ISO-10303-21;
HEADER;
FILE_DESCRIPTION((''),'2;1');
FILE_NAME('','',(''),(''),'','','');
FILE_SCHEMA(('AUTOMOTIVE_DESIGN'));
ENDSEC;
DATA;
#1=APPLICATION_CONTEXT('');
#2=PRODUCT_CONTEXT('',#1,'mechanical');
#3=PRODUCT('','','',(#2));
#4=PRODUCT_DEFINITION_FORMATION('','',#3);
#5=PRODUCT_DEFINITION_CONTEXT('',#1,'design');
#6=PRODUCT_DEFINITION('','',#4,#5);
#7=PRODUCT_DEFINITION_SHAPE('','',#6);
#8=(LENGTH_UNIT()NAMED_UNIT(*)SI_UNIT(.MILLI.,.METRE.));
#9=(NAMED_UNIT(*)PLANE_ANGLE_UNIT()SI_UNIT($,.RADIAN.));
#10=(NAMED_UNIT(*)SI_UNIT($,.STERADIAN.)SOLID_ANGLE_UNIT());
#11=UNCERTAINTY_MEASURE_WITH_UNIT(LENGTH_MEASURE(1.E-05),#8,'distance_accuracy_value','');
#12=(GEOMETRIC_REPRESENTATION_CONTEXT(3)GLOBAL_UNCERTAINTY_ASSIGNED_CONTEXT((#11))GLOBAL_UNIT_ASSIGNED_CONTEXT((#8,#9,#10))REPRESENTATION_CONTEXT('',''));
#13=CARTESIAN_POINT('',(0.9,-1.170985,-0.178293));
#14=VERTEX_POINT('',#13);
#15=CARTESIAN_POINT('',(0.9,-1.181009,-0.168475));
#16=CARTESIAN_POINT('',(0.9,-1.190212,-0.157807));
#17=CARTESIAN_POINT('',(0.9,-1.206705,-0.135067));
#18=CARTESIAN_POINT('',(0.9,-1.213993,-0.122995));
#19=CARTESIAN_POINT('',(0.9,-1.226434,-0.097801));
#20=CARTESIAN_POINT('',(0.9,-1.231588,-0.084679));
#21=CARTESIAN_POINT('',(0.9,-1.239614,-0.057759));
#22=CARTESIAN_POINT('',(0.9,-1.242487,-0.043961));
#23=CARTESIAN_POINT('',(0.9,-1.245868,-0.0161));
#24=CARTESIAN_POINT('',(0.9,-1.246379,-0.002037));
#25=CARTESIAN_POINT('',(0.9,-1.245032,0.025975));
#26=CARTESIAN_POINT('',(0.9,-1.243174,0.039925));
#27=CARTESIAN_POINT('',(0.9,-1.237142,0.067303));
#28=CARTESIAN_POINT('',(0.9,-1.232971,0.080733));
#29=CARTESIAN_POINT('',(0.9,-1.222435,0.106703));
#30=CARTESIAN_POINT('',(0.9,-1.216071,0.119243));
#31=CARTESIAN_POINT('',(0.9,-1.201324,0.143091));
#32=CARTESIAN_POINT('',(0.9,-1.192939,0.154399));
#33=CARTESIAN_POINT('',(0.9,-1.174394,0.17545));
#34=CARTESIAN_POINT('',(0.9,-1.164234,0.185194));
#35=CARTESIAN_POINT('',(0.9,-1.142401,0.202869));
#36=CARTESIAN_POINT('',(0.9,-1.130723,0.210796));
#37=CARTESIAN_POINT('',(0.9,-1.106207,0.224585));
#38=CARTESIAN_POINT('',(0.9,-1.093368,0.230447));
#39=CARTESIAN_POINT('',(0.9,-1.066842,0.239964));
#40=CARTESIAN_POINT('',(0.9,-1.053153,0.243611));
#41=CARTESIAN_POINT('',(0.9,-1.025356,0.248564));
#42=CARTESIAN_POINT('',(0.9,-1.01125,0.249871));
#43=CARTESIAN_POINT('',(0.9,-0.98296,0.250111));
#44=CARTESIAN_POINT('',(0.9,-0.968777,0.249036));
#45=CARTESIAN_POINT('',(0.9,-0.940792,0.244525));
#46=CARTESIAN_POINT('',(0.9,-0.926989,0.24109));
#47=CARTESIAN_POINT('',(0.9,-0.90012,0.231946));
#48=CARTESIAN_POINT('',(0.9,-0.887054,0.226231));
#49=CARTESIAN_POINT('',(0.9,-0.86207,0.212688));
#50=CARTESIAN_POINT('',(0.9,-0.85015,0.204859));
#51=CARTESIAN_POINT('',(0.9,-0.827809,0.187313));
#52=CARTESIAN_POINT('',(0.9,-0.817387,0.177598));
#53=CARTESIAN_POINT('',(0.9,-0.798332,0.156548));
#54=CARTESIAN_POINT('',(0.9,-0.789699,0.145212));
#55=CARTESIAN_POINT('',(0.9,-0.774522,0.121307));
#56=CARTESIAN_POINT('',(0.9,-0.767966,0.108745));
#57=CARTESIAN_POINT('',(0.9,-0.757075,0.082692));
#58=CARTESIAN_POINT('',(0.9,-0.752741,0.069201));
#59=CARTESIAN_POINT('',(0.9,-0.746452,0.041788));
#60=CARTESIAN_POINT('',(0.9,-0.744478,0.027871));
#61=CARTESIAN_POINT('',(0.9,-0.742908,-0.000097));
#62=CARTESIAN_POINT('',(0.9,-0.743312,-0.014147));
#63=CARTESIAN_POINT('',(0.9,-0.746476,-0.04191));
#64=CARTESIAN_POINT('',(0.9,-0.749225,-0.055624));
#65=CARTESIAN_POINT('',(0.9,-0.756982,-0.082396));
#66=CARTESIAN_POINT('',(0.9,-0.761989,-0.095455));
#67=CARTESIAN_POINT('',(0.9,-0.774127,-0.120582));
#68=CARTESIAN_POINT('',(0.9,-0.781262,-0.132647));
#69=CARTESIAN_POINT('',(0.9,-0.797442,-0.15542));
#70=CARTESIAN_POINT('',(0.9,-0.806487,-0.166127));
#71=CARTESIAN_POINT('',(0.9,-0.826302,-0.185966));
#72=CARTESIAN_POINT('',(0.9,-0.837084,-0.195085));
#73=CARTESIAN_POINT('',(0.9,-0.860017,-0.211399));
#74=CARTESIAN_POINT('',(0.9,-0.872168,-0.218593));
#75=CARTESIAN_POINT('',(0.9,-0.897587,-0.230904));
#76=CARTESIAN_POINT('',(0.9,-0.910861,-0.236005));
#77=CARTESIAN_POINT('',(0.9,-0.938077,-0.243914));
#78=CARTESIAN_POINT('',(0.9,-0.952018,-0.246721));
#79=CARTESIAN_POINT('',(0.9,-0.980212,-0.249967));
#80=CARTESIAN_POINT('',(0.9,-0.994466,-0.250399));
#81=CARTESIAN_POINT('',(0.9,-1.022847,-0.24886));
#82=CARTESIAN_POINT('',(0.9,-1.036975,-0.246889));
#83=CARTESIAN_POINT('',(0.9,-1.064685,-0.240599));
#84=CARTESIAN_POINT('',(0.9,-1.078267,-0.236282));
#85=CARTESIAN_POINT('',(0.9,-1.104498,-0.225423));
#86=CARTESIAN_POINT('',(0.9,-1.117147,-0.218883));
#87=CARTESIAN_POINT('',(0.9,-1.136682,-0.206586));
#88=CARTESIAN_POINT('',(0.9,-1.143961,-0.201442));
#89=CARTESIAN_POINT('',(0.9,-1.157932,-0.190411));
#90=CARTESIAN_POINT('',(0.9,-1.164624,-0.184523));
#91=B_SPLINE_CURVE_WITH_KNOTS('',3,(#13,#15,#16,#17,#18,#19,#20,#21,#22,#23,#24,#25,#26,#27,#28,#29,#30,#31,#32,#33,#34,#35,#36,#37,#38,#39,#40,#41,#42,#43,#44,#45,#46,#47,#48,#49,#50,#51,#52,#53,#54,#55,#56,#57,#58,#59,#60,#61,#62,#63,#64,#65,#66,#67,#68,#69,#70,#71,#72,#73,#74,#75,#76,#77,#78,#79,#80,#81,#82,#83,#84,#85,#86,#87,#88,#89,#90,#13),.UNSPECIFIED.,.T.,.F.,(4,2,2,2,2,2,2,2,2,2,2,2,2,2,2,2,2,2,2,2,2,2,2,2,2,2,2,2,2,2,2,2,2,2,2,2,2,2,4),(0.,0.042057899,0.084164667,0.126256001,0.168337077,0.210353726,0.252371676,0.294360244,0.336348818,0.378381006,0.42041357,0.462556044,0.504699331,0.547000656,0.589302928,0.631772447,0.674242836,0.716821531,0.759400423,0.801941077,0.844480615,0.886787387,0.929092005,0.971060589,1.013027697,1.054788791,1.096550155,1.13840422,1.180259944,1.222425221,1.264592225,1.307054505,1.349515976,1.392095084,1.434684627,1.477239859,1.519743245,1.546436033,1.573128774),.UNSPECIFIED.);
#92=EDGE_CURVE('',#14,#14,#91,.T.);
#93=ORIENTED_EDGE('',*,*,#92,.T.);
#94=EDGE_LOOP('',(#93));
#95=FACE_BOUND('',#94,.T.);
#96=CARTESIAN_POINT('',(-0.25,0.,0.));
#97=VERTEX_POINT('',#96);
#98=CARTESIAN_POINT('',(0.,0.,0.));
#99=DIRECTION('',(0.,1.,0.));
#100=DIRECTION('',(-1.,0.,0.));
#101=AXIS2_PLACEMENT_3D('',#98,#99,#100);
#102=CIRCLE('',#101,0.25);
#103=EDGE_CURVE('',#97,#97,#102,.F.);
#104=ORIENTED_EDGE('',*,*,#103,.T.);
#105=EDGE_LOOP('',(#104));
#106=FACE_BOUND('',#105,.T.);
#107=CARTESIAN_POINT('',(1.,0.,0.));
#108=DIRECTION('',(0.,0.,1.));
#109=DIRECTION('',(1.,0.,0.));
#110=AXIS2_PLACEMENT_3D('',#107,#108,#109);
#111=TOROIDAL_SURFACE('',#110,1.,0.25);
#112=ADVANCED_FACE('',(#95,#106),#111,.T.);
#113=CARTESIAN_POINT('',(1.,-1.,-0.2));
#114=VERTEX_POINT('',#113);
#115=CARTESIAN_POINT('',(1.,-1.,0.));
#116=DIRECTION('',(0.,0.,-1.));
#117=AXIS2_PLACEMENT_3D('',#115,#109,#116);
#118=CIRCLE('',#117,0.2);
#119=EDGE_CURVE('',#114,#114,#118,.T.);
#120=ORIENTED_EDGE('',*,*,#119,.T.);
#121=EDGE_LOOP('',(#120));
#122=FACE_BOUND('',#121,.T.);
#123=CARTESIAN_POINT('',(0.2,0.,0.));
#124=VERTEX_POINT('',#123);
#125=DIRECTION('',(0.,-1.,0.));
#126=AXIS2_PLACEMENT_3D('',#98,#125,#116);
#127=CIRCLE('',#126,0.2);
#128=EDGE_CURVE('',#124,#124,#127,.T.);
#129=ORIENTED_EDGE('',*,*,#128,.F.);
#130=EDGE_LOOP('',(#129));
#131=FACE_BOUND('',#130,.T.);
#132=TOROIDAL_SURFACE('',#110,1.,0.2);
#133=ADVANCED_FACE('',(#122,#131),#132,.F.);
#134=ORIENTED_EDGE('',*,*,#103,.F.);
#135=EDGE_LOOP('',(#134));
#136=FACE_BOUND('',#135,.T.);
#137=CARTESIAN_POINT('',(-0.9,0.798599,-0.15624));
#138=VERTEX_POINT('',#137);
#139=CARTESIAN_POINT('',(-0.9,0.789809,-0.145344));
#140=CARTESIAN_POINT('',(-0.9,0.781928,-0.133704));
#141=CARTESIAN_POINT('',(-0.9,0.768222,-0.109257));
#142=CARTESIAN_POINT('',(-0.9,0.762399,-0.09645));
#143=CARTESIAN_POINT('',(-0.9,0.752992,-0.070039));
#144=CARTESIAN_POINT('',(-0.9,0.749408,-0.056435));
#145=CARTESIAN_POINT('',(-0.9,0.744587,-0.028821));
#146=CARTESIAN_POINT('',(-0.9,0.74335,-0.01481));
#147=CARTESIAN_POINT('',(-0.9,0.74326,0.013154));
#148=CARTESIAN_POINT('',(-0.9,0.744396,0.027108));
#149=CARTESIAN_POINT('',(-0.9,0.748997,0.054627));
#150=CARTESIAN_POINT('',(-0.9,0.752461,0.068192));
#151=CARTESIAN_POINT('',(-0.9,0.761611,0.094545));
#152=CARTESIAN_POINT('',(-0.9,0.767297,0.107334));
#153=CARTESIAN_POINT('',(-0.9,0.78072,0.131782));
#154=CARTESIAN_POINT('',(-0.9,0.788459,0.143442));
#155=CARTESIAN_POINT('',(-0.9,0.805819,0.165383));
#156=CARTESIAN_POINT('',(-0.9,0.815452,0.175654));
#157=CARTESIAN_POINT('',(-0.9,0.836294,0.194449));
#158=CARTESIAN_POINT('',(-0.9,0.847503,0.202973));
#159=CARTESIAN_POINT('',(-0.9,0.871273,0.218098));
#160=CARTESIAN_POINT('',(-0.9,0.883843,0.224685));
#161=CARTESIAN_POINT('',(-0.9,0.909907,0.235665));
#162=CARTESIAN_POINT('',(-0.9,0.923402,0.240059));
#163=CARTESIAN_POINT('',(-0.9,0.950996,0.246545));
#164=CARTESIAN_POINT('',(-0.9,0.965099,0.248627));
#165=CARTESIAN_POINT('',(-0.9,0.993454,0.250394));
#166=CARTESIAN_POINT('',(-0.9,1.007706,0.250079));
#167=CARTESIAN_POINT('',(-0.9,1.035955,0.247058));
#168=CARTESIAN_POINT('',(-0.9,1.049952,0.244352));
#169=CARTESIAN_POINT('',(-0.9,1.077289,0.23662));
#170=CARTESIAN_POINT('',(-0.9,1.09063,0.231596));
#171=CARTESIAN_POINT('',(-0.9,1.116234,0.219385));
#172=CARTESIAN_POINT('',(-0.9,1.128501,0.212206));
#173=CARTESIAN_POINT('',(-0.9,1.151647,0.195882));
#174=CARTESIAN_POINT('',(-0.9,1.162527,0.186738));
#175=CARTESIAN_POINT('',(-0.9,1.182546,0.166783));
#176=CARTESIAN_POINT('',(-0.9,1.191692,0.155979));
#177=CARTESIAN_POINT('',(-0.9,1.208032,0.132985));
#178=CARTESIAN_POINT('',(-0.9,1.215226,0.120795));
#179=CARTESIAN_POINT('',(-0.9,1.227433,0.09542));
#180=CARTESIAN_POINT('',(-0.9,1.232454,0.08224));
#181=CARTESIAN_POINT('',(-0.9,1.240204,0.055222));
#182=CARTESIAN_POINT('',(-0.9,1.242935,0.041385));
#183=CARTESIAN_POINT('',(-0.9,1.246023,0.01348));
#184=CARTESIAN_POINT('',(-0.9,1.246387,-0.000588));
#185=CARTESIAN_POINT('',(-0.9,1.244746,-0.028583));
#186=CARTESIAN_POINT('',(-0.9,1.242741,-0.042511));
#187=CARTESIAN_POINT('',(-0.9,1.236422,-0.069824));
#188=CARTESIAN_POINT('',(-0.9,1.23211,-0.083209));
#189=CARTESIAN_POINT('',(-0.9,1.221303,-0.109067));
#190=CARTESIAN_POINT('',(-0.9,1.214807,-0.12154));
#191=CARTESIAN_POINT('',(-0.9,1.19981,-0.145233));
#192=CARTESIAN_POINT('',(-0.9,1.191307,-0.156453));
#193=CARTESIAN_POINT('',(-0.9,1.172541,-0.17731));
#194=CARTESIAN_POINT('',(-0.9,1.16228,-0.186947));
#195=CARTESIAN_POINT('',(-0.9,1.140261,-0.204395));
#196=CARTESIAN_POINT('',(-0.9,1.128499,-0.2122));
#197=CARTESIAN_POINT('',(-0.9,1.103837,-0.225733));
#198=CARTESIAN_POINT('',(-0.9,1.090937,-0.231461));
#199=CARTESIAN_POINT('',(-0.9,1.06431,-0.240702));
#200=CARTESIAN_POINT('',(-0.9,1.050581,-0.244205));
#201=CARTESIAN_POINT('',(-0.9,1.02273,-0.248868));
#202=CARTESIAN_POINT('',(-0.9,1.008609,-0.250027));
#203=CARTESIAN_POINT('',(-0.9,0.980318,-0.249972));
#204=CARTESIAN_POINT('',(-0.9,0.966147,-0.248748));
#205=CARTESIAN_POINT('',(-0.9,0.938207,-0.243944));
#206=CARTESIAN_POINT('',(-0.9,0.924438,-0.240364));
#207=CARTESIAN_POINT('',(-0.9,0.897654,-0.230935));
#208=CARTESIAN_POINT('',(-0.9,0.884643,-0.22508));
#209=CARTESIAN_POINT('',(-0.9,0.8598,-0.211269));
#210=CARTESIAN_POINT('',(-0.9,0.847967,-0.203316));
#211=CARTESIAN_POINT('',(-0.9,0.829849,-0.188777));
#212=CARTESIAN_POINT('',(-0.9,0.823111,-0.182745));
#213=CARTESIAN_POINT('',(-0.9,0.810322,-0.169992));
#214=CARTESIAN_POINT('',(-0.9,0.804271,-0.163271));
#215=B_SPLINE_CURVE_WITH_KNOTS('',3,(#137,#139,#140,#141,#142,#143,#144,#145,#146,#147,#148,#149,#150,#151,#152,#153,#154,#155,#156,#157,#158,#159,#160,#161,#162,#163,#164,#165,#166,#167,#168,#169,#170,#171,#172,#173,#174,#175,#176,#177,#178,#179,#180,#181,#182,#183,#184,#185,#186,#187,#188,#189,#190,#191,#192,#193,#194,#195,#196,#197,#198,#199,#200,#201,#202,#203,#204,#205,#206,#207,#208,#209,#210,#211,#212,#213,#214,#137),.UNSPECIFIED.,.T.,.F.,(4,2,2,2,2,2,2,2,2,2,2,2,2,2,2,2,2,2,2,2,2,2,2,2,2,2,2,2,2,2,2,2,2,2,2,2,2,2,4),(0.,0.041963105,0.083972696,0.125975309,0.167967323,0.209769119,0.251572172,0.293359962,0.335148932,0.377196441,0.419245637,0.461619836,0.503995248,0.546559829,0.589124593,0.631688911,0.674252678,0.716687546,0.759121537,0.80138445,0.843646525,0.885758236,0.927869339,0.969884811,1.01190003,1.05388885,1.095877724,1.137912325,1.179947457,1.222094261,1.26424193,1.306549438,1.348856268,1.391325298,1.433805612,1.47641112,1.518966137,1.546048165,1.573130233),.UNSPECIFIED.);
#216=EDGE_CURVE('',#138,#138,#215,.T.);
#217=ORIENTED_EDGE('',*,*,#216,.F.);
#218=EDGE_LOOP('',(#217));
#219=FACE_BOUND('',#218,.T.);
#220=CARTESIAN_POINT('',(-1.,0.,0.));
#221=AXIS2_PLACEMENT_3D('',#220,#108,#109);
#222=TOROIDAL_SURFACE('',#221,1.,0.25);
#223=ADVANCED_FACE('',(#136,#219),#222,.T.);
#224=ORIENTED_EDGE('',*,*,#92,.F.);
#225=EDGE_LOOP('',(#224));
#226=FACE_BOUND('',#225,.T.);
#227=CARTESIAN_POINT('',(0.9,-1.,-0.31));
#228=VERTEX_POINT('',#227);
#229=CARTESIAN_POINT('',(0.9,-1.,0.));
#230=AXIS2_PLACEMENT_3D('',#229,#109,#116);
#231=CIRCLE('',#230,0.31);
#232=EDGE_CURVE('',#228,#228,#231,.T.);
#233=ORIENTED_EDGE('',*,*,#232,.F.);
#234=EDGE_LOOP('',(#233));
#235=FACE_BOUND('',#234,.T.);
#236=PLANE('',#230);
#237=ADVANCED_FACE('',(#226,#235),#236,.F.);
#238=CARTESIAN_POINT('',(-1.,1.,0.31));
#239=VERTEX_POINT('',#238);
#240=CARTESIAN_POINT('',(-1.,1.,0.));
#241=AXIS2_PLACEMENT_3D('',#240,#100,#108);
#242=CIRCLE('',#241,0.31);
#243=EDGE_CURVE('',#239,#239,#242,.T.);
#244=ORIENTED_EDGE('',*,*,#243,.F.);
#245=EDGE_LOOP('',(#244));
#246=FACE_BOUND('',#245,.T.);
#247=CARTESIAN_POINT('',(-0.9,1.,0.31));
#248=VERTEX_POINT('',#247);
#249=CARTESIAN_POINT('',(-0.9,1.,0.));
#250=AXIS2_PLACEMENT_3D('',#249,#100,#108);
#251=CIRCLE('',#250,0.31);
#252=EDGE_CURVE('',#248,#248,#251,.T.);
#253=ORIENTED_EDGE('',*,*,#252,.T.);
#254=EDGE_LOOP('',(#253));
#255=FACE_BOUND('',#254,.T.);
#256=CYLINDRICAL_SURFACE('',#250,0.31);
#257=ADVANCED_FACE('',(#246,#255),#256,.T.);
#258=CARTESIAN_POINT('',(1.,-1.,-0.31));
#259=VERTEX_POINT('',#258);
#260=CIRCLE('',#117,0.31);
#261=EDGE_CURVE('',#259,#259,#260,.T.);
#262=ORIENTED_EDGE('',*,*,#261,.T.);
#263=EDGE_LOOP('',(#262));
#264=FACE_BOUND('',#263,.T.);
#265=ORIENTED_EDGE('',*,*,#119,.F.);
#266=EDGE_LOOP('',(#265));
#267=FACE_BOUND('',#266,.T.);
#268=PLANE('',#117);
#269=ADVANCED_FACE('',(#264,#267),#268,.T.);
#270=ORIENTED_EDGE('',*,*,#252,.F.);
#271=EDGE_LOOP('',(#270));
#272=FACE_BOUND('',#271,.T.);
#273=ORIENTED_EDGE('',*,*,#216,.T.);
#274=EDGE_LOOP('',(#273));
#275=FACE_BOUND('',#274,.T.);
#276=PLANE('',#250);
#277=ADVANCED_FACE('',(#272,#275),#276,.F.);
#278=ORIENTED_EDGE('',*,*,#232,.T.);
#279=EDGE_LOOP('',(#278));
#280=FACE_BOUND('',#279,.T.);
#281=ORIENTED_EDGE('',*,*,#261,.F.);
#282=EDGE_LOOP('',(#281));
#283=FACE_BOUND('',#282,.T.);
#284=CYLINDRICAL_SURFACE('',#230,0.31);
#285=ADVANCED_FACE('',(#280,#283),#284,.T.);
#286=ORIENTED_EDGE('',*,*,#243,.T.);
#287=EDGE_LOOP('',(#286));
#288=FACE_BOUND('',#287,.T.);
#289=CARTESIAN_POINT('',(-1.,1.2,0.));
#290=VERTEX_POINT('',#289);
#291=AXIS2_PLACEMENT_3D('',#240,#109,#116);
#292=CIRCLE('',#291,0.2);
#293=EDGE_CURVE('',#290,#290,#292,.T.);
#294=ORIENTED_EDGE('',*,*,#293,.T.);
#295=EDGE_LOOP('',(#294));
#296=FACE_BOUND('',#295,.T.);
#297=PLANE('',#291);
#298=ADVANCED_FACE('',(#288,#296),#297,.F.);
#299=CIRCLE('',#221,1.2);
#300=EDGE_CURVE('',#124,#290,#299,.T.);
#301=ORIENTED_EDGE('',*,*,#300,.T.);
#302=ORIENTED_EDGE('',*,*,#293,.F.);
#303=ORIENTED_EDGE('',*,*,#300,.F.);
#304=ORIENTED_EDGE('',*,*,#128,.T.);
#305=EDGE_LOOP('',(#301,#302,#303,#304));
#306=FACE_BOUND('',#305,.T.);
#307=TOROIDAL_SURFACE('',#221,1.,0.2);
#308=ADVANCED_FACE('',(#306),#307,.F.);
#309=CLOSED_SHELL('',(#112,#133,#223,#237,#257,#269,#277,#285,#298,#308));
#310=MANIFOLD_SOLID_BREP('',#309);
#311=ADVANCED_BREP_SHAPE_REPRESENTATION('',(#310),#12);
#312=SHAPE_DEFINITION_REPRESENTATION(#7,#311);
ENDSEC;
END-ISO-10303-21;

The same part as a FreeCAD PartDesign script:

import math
import FreeCAD as App
import Part
import Sketcher
Q = App.Units.Quantity

doc = App.newDocument("Part")
body = doc.addObject("PartDesign::Body", "Body")

sketch1 = body.newObject("Sketcher::SketchObject", "Sketch")
sketch1.AttachmentSupport = (doc.getObject("YZ_Plane"), [""])
sketch1.MapMode = "FlatFace"
sketch1.AttachmentOffset = App.Placement(App.Vector(0, 0, 1), App.Rotation())
sketch1.addGeometry([
    Part.Circle(App.Vector(-1, 0, 0), App.Vector(0, 0, 1), 0.25),
    Part.Circle(App.Vector(-1, 0, 0), App.Vector(0, 0, 1), 0.2),
], False)
sketch1.addConstraint([
    Sketcher.Constraint("Coincident", 1, 3, 0, 3),
    Sketcher.Constraint("PointOnObject", 0, 3, -1),
    Sketcher.Constraint("Diameter", 0, Q("0.5 mm")),
    Sketcher.Constraint("Diameter", 1, Q("0.4 mm")),
    Sketcher.Constraint("DistanceX", 0, 3, -1, 1, Q("1 mm")),
])

sketch2 = body.newObject("Sketcher::SketchObject", "Sketch001")
sketch2.AttachmentSupport = (doc.getObject("XY_Plane"), [""])
sketch2.MapMode = "FlatFace"
sketch2.addGeometry([
    Part.ArcOfCircle(Part.Circle(App.Vector(1, 0, 0), App.Vector(0, 0, 1), 1), math.radians(-180), math.radians(-90)),
    Part.ArcOfCircle(Part.Circle(App.Vector(-1, 0, 0), App.Vector(0, 0, 1), 1), math.radians(0), math.radians(90)),
], False)
sketch2.addConstraint([
    Sketcher.Constraint("Tangent", 0, 1, 1, 1),
    Sketcher.Constraint("Coincident", 0, 1, -1, 1),
    Sketcher.Constraint("Equal", 0, 1),
    Sketcher.Constraint("PointOnObject", 0, 3, -1),
    Sketcher.Constraint("Radius", 0, Q("1 mm")),
    Sketcher.Constraint("DistanceX", -1, 1, 0, 2, Q("1 mm")),
    Sketcher.Constraint("DistanceX", 1, 2, -1, 1, Q("1 mm")),
])
doc.recompute()

additivepipe = body.newObject("PartDesign::AdditivePipe", "AdditivePipe")
additivepipe.Profile = sketch1
additivepipe.Spine = (sketch2, ["Edge1", "Edge2"])

sketch3 = body.newObject("Sketcher::SketchObject", "Sketch002")
sketch3.AttachmentSupport = (doc.getObject("YZ_Plane"), [""])
sketch3.MapMode = "FlatFace"
sketch3.AttachmentOffset = App.Placement(App.Vector(0, 0, -1), App.Rotation())
sketch3.addGeometry([
    Part.Circle(App.Vector(1, 0, 0), App.Vector(0, 0, 1), 0.31),
    Part.Circle(App.Vector(1, 0, 0), App.Vector(0, 0, 1), 0.21),
], False)
sketch3.addConstraint([
    Sketcher.Constraint("Coincident", 1, 3, 0, 3),
    Sketcher.Constraint("PointOnObject", 0, 3, -1),
    Sketcher.Constraint("Diameter", 0, Q("0.62 mm")),
    Sketcher.Constraint("Diameter", 1, Q("0.42 mm")),
    Sketcher.Constraint("DistanceX", -1, 1, 0, 3, Q("1 mm")),
])

sketch4 = body.newObject("Sketcher::SketchObject", "Sketch003")
sketch4.AttachmentSupport = (doc.getObject("XY_Plane"), [""])
sketch4.MapMode = "FlatFace"
sketch4.addGeometry(Part.LineSegment(App.Vector(-1, 1, 0), App.Vector(-0.9, 1, 0)), False)
sketch4.addConstraint([
    Sketcher.Constraint("Horizontal", 0),
    Sketcher.Constraint("DistanceX", 0, 1, 0, 2, Q("0.1 mm")),
    Sketcher.Constraint("DistanceX", 0, 1, -1, 1, Q("1 mm")),
    Sketcher.Constraint("DistanceY", -1, 1, 0, 1, Q("1 mm")),
])
doc.recompute()

additivepipe2 = body.newObject("PartDesign::AdditivePipe", "AdditivePipe001")
additivepipe2.Profile = sketch3
additivepipe2.Spine = (sketch4, ["Edge1"])

sketch5 = body.newObject("Sketcher::SketchObject", "Sketch004")
sketch5.AttachmentSupport = (doc.getObject("YZ_Plane"), [""])
sketch5.MapMode = "FlatFace"
sketch5.AttachmentOffset = App.Placement(App.Vector(0, 0, 1), App.Rotation())
sketch5.addGeometry([
    Part.Circle(App.Vector(-1, 0, 0), App.Vector(0, 0, 1), 0.31),
    Part.Circle(App.Vector(-1, 0, 0), App.Vector(0, 0, 1), 0.21),
], False)
sketch5.addConstraint([
    Sketcher.Constraint("Coincident", 1, 3, 0, 3),
    Sketcher.Constraint("PointOnObject", 0, 3, -1),
    Sketcher.Constraint("Diameter", 0, Q("0.62 mm")),
    Sketcher.Constraint("Diameter", 1, Q("0.42 mm")),
    Sketcher.Constraint("DistanceX", 0, 3, -1, 1, Q("1 mm")),
])

sketch6 = body.newObject("Sketcher::SketchObject", "Sketch005")
sketch6.AttachmentSupport = (doc.getObject("XY_Plane"), [""])
sketch6.MapMode = "FlatFace"
sketch6.addGeometry(Part.LineSegment(App.Vector(1, -1, 0), App.Vector(0.9, -1, 0)), False)
sketch6.addConstraint([
    Sketcher.Constraint("Horizontal", 0),
    Sketcher.Constraint("DistanceX", 0, 2, 0, 1, Q("0.1 mm")),
    Sketcher.Constraint("DistanceX", -1, 1, 0, 1, Q("1 mm")),
    Sketcher.Constraint("DistanceY", 0, 1, -1, 1, Q("1 mm")),
])
doc.recompute()

additivepipe3 = body.newObject("PartDesign::AdditivePipe", "AdditivePipe002")
additivepipe3.Profile = sketch5
additivepipe3.Spine = (sketch6, ["Edge1"])

doc.recompute()
